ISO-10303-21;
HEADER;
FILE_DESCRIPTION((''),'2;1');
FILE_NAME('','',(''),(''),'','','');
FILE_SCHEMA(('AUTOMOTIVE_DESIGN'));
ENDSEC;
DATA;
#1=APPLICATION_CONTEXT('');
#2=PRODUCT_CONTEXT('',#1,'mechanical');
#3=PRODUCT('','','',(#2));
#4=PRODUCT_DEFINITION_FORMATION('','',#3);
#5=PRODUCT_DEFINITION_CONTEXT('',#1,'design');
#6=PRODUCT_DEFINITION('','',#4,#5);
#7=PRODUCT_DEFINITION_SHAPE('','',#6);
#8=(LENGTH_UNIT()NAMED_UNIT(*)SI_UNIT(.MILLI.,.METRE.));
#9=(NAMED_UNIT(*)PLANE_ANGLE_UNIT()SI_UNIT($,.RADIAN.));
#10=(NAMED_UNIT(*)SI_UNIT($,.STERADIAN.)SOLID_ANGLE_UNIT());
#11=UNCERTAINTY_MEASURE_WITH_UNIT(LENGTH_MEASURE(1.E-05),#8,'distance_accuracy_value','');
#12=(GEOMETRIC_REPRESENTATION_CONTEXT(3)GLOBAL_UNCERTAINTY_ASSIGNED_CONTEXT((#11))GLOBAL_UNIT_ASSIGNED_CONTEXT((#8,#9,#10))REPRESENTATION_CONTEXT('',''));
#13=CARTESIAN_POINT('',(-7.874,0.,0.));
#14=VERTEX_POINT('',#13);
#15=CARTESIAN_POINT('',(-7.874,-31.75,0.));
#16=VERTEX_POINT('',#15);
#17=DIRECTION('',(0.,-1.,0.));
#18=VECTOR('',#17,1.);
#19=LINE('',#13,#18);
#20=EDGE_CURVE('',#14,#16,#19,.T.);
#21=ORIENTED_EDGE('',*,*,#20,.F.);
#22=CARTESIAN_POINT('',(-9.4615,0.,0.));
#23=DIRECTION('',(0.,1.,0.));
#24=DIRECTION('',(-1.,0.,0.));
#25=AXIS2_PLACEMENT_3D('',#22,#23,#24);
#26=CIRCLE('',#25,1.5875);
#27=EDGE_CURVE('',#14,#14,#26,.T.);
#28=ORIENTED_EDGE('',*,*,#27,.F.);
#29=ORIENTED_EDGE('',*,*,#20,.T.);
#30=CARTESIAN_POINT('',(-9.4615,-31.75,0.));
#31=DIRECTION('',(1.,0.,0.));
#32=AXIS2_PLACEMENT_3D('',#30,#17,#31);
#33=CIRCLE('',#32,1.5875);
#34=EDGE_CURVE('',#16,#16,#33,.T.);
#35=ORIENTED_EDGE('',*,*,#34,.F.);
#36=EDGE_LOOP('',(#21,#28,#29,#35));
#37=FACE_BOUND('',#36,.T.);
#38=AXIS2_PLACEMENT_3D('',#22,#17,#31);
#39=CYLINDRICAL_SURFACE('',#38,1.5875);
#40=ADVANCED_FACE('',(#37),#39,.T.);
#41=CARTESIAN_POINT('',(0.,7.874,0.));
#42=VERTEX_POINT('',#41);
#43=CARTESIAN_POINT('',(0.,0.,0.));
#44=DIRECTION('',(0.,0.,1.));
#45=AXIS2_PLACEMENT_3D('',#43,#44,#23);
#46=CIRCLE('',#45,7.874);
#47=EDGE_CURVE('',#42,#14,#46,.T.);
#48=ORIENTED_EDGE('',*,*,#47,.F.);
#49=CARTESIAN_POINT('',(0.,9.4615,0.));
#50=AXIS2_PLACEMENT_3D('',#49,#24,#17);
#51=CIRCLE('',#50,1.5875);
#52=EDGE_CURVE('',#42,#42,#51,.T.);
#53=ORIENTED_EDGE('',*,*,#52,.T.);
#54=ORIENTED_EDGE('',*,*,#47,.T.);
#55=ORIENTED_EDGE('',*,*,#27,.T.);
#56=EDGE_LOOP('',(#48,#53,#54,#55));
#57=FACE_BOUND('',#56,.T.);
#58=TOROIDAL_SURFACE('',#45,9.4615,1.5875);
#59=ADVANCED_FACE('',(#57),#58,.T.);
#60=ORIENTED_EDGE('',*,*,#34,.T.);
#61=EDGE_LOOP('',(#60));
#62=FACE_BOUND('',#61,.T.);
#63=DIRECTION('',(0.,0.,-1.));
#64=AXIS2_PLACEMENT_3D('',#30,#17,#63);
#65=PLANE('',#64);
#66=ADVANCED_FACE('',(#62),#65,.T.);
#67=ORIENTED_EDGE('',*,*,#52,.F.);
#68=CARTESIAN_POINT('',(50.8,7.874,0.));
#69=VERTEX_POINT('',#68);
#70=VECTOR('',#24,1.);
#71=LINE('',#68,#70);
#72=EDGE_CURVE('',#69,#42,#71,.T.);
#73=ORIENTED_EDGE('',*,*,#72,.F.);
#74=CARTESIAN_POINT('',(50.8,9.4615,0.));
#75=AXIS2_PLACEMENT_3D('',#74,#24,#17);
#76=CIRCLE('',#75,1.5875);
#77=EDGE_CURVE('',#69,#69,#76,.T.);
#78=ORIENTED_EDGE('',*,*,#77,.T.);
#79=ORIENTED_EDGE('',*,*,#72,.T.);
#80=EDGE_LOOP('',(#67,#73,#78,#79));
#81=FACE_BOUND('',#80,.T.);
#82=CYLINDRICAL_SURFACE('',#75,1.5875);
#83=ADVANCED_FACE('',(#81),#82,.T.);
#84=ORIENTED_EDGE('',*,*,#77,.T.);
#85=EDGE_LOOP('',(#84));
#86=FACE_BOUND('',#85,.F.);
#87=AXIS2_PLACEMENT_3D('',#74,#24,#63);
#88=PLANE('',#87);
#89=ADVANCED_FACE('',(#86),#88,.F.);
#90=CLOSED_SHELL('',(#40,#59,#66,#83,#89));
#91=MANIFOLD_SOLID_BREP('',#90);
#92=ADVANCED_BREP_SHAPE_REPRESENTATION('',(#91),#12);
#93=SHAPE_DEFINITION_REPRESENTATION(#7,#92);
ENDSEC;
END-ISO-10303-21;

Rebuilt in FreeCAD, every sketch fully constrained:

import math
import FreeCAD as App
import Part
import Sketcher

V = App.Vector
Q = App.Units.Quantity

doc = App.newDocument("Part")
body = doc.addObject("PartDesign::Body", "Body")

# Sketch on XZ plane
sketch1 = body.newObject("Sketcher::SketchObject", "Sketch")
sketch1.AttachmentSupport = (doc.getObject("XZ_Plane"), [""])
sketch1.MapMode = "FlatFace"
sketch1.AttachmentOffset = App.Placement(V(0, 0, 1.25 * 25.4), App.Rotation())
sketch1.addGeometry(Part.Circle(V(-9.5, 0, 0), V(0, 0, 1), 1.6), False)
sketch1.addConstraint([
    Sketcher.Constraint("PointOnObject", 0, 3, -1),
    Sketcher.Constraint("Diameter", 0, Q("0.125 in")),
    Sketcher.Constraint("DistanceX", 0, 3, -1, 1, Q("0.3725 in")),
])

# Sketch on XY plane
sketch2 = body.newObject("Sketcher::SketchObject", "Sketch001")
sketch2.AttachmentSupport = (doc.getObject("XY_Plane"), [""])
sketch2.MapMode = "FlatFace"
sketch2.addGeometry([
    Part.LineSegment(V(51, 8, 0), V(0, 8, 0)),
    Part.ArcOfCircle(Part.Circle(V(0, 0, 0), V(0, 0, 1), 8), math.radians(90), math.radians(180)),
    Part.LineSegment(V(-8, 0, 0), V(-8, -32, 0)),
], False)
sketch2.addConstraint([
    Sketcher.Constraint("Tangent", 0, 2, 1, 1),
    Sketcher.Constraint("Tangent", 1, 2, 2, 1),
    Sketcher.Constraint("Horizontal", 0),
    Sketcher.Constraint("Vertical", 2),
    Sketcher.Constraint("Coincident", 1, 3, -1, 1),
    Sketcher.Constraint("DistanceX", 0, 2, 0, 1, Q("2 in")),
    Sketcher.Constraint("Radius", 1, Q("0.31 in")),
    Sketcher.Constraint("DistanceY", 2, 2, 2, 1, Q("1.25 in")),
])
doc.recompute()

additivepipe = body.newObject("PartDesign::AdditivePipe", "AdditivePipe")
additivepipe.Profile = sketch1
additivepipe.Spine = (sketch2, ["Edge1", "Edge2", "Edge3"])

doc.recompute()
